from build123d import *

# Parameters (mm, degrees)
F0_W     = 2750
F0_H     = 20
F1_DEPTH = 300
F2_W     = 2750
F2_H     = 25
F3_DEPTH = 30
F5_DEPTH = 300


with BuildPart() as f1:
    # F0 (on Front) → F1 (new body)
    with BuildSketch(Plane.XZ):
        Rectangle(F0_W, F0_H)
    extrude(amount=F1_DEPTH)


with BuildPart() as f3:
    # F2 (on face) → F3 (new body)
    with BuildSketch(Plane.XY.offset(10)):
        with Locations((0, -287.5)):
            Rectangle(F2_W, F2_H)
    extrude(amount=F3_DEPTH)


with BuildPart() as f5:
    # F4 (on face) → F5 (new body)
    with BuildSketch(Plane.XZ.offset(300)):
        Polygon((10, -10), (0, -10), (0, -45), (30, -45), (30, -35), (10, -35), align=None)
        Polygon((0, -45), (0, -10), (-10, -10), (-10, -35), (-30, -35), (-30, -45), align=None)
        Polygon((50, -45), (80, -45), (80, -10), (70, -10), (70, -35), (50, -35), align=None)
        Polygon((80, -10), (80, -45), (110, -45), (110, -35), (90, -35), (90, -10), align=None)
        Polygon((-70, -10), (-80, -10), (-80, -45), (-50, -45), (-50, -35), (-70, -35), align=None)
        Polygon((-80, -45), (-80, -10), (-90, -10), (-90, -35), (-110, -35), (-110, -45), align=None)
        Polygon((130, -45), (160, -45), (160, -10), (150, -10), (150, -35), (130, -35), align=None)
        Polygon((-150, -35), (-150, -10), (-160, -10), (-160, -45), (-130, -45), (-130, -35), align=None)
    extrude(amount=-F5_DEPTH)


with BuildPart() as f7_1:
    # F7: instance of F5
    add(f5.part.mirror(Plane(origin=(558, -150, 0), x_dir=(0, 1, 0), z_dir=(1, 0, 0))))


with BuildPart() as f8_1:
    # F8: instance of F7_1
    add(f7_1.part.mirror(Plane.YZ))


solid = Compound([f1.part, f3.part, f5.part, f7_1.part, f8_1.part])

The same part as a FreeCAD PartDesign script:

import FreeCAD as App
import Part
import Sketcher

V = App.Vector
Q = App.Units.Quantity

doc = App.newDocument("Part")
params = doc.addObject("Spreadsheet::Sheet", "Params")
for row, (alias, value) in enumerate([
    ("sketch1_width", "2750 mm"),
    ("sketch1_height", "20 mm"),
    ("pad1_length", "300 mm"),
    ("sketch2_width", "2750 mm"),
    ("sketch2_height", "25 mm"),
    ("pad2_length", "30 mm"),
    ("sketch3_width", "20 mm"),
    ("sketch3_width2", "30 mm"),
    ("sketch3_height", "25 mm"),
    ("pad3_length", "300 mm"),
], start=1):
    params.set(f"A{row}", alias)
    params.set(f"B{row}", "=" + value)
    params.setAlias(f"B{row}", alias)

body = doc.addObject("PartDesign::Body", "Body")

# Sketch on XZ plane
sketch1 = body.newObject("Sketcher::SketchObject", "Sketch")
sketch1.AttachmentSupport = (doc.getObject("XZ_Plane"), [""])
sketch1.MapMode = "FlatFace"
sketch1.addGeometry(Part.LineSegment(V(-1375, 10, 0), V(-1375, -10, 0)), False)
sketch1.addGeometry(Part.LineSegment(V(-1375, -10, 0), V(1375, -10, 0)), False)
sketch1.addGeometry(Part.LineSegment(V(1375, -10, 0), V(1375, 10, 0)), False)
sketch1.addGeometry(Part.LineSegment(V(1375, 10, 0), V(-1375, 10, 0)), False)
sketch1.addConstraint(Sketcher.Constraint("Coincident", 0, 2, 1, 1))
sketch1.addConstraint(Sketcher.Constraint("Coincident", 1, 2, 2, 1))
sketch1.addConstraint(Sketcher.Constraint("Coincident", 2, 2, 3, 1))
sketch1.addConstraint(Sketcher.Constraint("Coincident", 3, 2, 0, 1))
sketch1.addConstraint(Sketcher.Constraint("Vertical", 0))
sketch1.addConstraint(Sketcher.Constraint("Horizontal", 1))
sketch1.addConstraint(Sketcher.Constraint("Vertical", 2))
sketch1.addConstraint(Sketcher.Constraint("Horizontal", 3))
sketch1.addConstraint(Sketcher.Constraint("Symmetric", 0, 2, 2, 2, -1, 1))
sketch1.addConstraint(Sketcher.Constraint("DistanceX", 1, 1, 1, 2, Q("2750 mm")))
sketch1.addConstraint(Sketcher.Constraint("DistanceY", 0, 2, 0, 1, Q("20 mm")))
sketch1.setExpression("Constraints[9]", "Params.sketch1_width")
sketch1.setExpression("Constraints[10]", "Params.sketch1_height")
pad1 = body.newObject("PartDesign::Pad", "Pad")
pad1.Profile = sketch1
pad1.setExpression("Length", "Params.pad1_length")
body2 = doc.addObject("PartDesign::Body", "Body001")

# Sketch on XY plane
sketch2 = body2.newObject("Sketcher::SketchObject", "Sketch001")
sketch2.AttachmentSupport = (doc.getObject("XY_Plane001"), [""])
sketch2.MapMode = "FlatFace"
sketch2.AttachmentOffset = App.Placement(V(0, 0, 10), App.Rotation())
sketch2.addGeometry(Part.LineSegment(V(-1375, -275, 0), V(-1375, -300, 0)), False)
sketch2.addGeometry(Part.LineSegment(V(-1375, -300, 0), V(1375, -300, 0)), False)
sketch2.addGeometry(Part.LineSegment(V(1375, -300, 0), V(1375, -275, 0)), False)
sketch2.addGeometry(Part.LineSegment(V(1375, -275, 0), V(-1375, -275, 0)), False)
sketch2.addConstraint(Sketcher.Constraint("Coincident", 0, 2, 1, 1))
sketch2.addConstraint(Sketcher.Constraint("Coincident", 1, 2, 2, 1))
sketch2.addConstraint(Sketcher.Constraint("Coincident", 2, 2, 3, 1))
sketch2.addConstraint(Sketcher.Constraint("Coincident", 3, 2, 0, 1))
sketch2.addConstraint(Sketcher.Constraint("Vertical", 0))
sketch2.addConstraint(Sketcher.Constraint("Horizontal", 1))
sketch2.addConstraint(Sketcher.Constraint("Vertical", 2))
sketch2.addConstraint(Sketcher.Constraint("Horizontal", 3))
sketch2.addConstraint(Sketcher.Constraint("DistanceX", 1, 1, 1, 2, Q("2750 mm")))
sketch2.addConstraint(Sketcher.Constraint("DistanceY", 0, 2, 0, 1, Q("25 mm")))
sketch2.addConstraint(Sketcher.Constraint("DistanceX", 0, 2, -1, 1, Q("1375 mm")))
sketch2.addConstraint(Sketcher.Constraint("DistanceY", 0, 2, -1, 1, Q("300 mm")))
sketch2.setExpression("Constraints[8]", "Params.sketch2_width")
sketch2.setExpression("Constraints[9]", "Params.sketch2_height")
pad2 = body2.newObject("PartDesign::Pad", "Pad001")
pad2.Profile = sketch2
pad2.setExpression("Length", "Params.pad2_length")
body3 = doc.addObject("PartDesign::Body", "Body002")
body3.AllowCompound = True

# Sketch on XZ plane
sketch3 = body3.newObject("Sketcher::SketchObject", "Sketch002")
sketch3.AttachmentSupport = (doc.getObject("XZ_Plane002"), [""])
sketch3.MapMode = "FlatFace"
sketch3.AttachmentOffset = App.Placement(V(0, 0, 300), App.Rotation())
sketch3.addGeometry(Part.LineSegment(V(10, -10, 0), V(-10, -10, 0)), False)
sketch3.addGeometry(Part.LineSegment(V(-10, -10, 0), V(-10, -35, 0)), False)
sketch3.addGeometry(Part.LineSegment(V(-10, -35, 0), V(-30, -35, 0)), False)
sketch3.addGeometry(Part.LineSegment(V(-30, -35, 0), V(-30, -45, 0)), False)
sketch3.addGeometry(Part.LineSegment(V(-30, -45, 0), V(30, -45, 0)), False)
sketch3.addGeometry(Part.LineSegment(V(30, -45, 0), V(30, -35, 0)), False)
sketch3.addGeometry(Part.LineSegment(V(30, -35, 0), V(10, -35, 0)), False)
sketch3.addGeometry(Part.LineSegment(V(10, -35, 0), V(10, -10, 0)), False)
sketch3.addGeometry(Part.LineSegment(V(50, -45, 0), V(110, -45, 0)), False)
sketch3.addGeometry(Part.LineSegment(V(110, -45, 0), V(110, -35, 0)), False)
sketch3.addGeometry(Part.LineSegment(V(110, -35, 0), V(90, -35, 0)), False)
sketch3.addGeometry(Part.LineSegment(V(90, -35, 0), V(90, -10, 0)), False)
sketch3.addGeometry(Part.LineSegment(V(90, -10, 0), V(70, -10, 0)), False)
sketch3.addGeometry(Part.LineSegment(V(70, -10, 0), V(70, -35, 0)), False)
sketch3.addGeometry(Part.LineSegment(V(70, -35, 0), V(50, -35, 0)), False)
sketch3.addGeometry(Part.LineSegment(V(50, -35, 0), V(50, -45, 0)), False)
sketch3.addGeometry(Part.LineSegment(V(-70, -10, 0), V(-90, -10, 0)), False)
sketch3.addGeometry(Part.LineSegment(V(-90, -10, 0), V(-90, -35, 0)), False)
sketch3.addGeometry(Part.LineSegment(V(-90, -35, 0), V(-110, -35, 0)), False)
sketch3.addGeometry(Part.LineSegment(V(-110, -35, 0), V(-110, -45, 0)), False)
sketch3.addGeometry(Part.LineSegment(V(-110, -45, 0), V(-50, -45, 0)), False)
sketch3.addGeometry(Part.LineSegment(V(-50, -45, 0), V(-50, -35, 0)), False)
sketch3.addGeometry(Part.LineSegment(V(-50, -35, 0), V(-70, -35, 0)), False)
sketch3.addGeometry(Part.LineSegment(V(-70, -35, 0), V(-70, -10, 0)), False)
sketch3.addGeometry(Part.LineSegment(V(130, -45, 0), V(160, -45, 0)), False)
sketch3.addGeometry(Part.LineSegment(V(160, -45, 0), V(160, -10, 0)), False)
sketch3.addGeometry(Part.LineSegment(V(160, -10, 0), V(150, -10, 0)), False)
sketch3.addGeometry(Part.LineSegment(V(150, -10, 0), V(150, -35, 0)), False)
sketch3.addGeometry(Part.LineSegment(V(150, -35, 0), V(130, -35, 0)), False)
sketch3.addGeometry(Part.LineSegment(V(130, -35, 0), V(130, -45, 0)), False)
sketch3.addGeometry(Part.LineSegment(V(-150, -35, 0), V(-150, -10, 0)), False)
sketch3.addGeometry(Part.LineSegment(V(-150, -10, 0), V(-160, -10, 0)), False)
sketch3.addGeometry(Part.LineSegment(V(-160, -10, 0), V(-160, -45, 0)), False)
sketch3.addGeometry(Part.LineSegment(V(-160, -45, 0), V(-130, -45, 0)), False)
sketch3.addGeometry(Part.LineSegment(V(-130, -45, 0), V(-130, -35, 0)), False)
sketch3.addGeometry(Part.LineSegment(V(-130, -35, 0), V(-150, -35, 0)), False)
sketch3.addConstraint(Sketcher.Constraint("Coincident", 0, 2, 1, 1))
sketch3.addConstraint(Sketcher.Constraint("Coincident", 1, 2, 2, 1))
sketch3.addConstraint(Sketcher.Constraint("Coincident", 2, 2, 3, 1))
sketch3.addConstraint(Sketcher.Constraint("Coincident", 3, 2, 4, 1))
sketch3.addConstraint(Sketcher.Constraint("Coincident", 4, 2, 5, 1))
sketch3.addConstraint(Sketcher.Constraint("Coincident", 5, 2, 6, 1))
sketch3.addConstraint(Sketcher.Constraint("Coincident", 6, 2, 7, 1))
sketch3.addConstraint(Sketcher.Constraint("Coincident", 7, 2, 0, 1))
sketch3.addConstraint(Sketcher.Constraint("Coincident", 8, 2, 9, 1))
sketch3.addConstraint(Sketcher.Constraint("Coincident", 9, 2, 10, 1))
sketch3.addConstraint(Sketcher.Constraint("Coincident", 10, 2, 11, 1))
sketch3.addConstraint(Sketcher.Constraint("Coincident", 11, 2, 12, 1))
sketch3.addConstraint(Sketcher.Constraint("Coincident", 12, 2, 13, 1))
sketch3.addConstraint(Sketcher.Constraint("Coincident", 13, 2, 14, 1))
sketch3.addConstraint(Sketcher.Constraint("Coincident", 14, 2, 15, 1))
sketch3.addConstraint(Sketcher.Constraint("Coincident", 15, 2, 8, 1))
sketch3.addConstraint(Sketcher.Constraint("Coincident", 16, 2, 17, 1))
sketch3.addConstraint(Sketcher.Constraint("Coincident", 17, 2, 18, 1))
sketch3.addConstraint(Sketcher.Constraint("Coincident", 18, 2, 19, 1))
sketch3.addConstraint(Sketcher.Constraint("Coincident", 19, 2, 20, 1))
sketch3.addConstraint(Sketcher.Constraint("Coincident", 20, 2, 21, 1))
sketch3.addConstraint(Sketcher.Constraint("Coincident", 21, 2, 22, 1))
sketch3.addConstraint(Sketcher.Constraint("Coincident", 22, 2, 23, 1))
sketch3.addConstraint(Sketcher.Constraint("Coincident", 23, 2, 16, 1))
sketch3.addConstraint(Sketcher.Constraint("Coincident", 24, 2, 25, 1))
sketch3.addConstraint(Sketcher.Constraint("Coincident", 25, 2, 26, 1))
sketch3.addConstraint(Sketcher.Constraint("Coincident", 26, 2, 27, 1))
sketch3.addConstraint(Sketcher.Constraint("Coincident", 27, 2, 28, 1))
sketch3.addConstraint(Sketcher.Constraint("Coincident", 28, 2, 29, 1))
sketch3.addConstraint(Sketcher.Constraint("Coincident", 29, 2, 24, 1))
sketch3.addConstraint(Sketcher.Constraint("Coincident", 30, 2, 31, 1))
sketch3.addConstraint(Sketcher.Constraint("Coincident", 31, 2, 32, 1))
sketch3.addConstraint(Sketcher.Constraint("Coincident", 32, 2, 33, 1))
sketch3.addConstraint(Sketcher.Constraint("Coincident", 33, 2, 34, 1))
sketch3.addConstraint(Sketcher.Constraint("Coincident", 34, 2, 35, 1))
sketch3.addConstraint(Sketcher.Constraint("Coincident", 35, 2, 30, 1))
sketch3.addConstraint(Sketcher.Constraint("Horizontal", 0))
sketch3.addConstraint(Sketcher.Constraint("Vertical", 1))
sketch3.addConstraint(Sketcher.Constraint("Horizontal", 2))
sketch3.addConstraint(Sketcher.Constraint("Vertical", 3))
sketch3.addConstraint(Sketcher.Constraint("Horizontal", 4))
sketch3.addConstraint(Sketcher.Constraint("Vertical", 5))
sketch3.addConstraint(Sketcher.Constraint("Horizontal", 6))
sketch3.addConstraint(Sketcher.Constraint("Vertical", 7))
sketch3.addConstraint(Sketcher.Constraint("Horizontal", 8))
sketch3.addConstraint(Sketcher.Constraint("Vertical", 9))
sketch3.addConstraint(Sketcher.Constraint("Horizontal", 10))
sketch3.addConstraint(Sketcher.Constraint("Vertical", 11))
sketch3.addConstraint(Sketcher.Constraint("Horizontal", 12))
sketch3.addConstraint(Sketcher.Constraint("Vertical", 13))
sketch3.addConstraint(Sketcher.Constraint("Horizontal", 14))
sketch3.addConstraint(Sketcher.Constraint("Vertical", 15))
sketch3.addConstraint(Sketcher.Constraint("Horizontal", 16))
sketch3.addConstraint(Sketcher.Constraint("Vertical", 17))
sketch3.addConstraint(Sketcher.Constraint("Horizontal", 18))
sketch3.addConstraint(Sketcher.Constraint("Vertical", 19))
sketch3.addConstraint(Sketcher.Constraint("Horizontal", 20))
sketch3.addConstraint(Sketcher.Constraint("Vertical", 21))
sketch3.addConstraint(Sketcher.Constraint("Horizontal", 22))
sketch3.addConstraint(Sketcher.Constraint("Vertical", 23))
sketch3.addConstraint(Sketcher.Constraint("Horizontal", 24))
sketch3.addConstraint(Sketcher.Constraint("Vertical", 25))
sketch3.addConstraint(Sketcher.Constraint("Horizontal", 26))
sketch3.addConstraint(Sketcher.Constraint("Vertical", 27))
sketch3.addConstraint(Sketcher.Constraint("Horizontal", 28))
sketch3.addConstraint(Sketcher.Constraint("Vertical", 29))
sketch3.addConstraint(Sketcher.Constraint("Vertical", 30))
sketch3.addConstraint(Sketcher.Constraint("Horizontal", 31))
sketch3.addConstraint(Sketcher.Constraint("Vertical", 32))
sketch3.addConstraint(Sketcher.Constraint("Horizontal", 33))
sketch3.addConstraint(Sketcher.Constraint("Vertical", 34))
sketch3.addConstraint(Sketcher.Constraint("Horizontal", 35))
sketch3.addConstraint(Sketcher.Constraint("Symmetric", 2, 2, 5, 2, -2))
sketch3.addConstraint(Sketcher.Constraint("Symmetric", 11, 2, 16, 2, -2))
sketch3.addConstraint(Sketcher.Constraint("Symmetric", 9, 2, 18, 2, -2))
sketch3.addConstraint(Sketcher.Constraint("Symmetric", 15, 2, 20, 2, -2))
sketch3.addConstraint(Sketcher.Constraint("Symmetric", 13, 2, 22, 2, -2))
sketch3.addConstraint(Sketcher.Constraint("Symmetric", 26, 2, 30, 2, -2))
sketch3.addConstraint(Sketcher.Constraint("Symmetric", 24, 2, 32, 2, -2))
sketch3.addConstraint(Sketcher.Constraint("Symmetric", 28, 2, 34, 2, -2))
sketch3.addConstraint(Sketcher.Constraint("Horizontal", 4, 2, 8, 2))
sketch3.addConstraint(Sketcher.Constraint("Horizontal", 6, 2, 9, 2))
sketch3.addConstraint(Sketcher.Constraint("Horizontal", 7, 2, 11, 2))
sketch3.addConstraint(Sketcher.Constraint("Horizontal", 10, 2, 13, 2))
sketch3.addConstraint(Sketcher.Constraint("Horizontal", 20, 2, 24, 2))
sketch3.addConstraint(Sketcher.Constraint("Horizontal", 23, 2, 25, 2))
sketch3.addConstraint(Sketcher.Constraint("Horizontal", 22, 2, 27, 2))
sketch3.addConstraint(Sketcher.Constraint("Equal", 0, 2))
sketch3.addConstraint(Sketcher.Constraint("Equal", 2, 6))
sketch3.addConstraint(Sketcher.Constraint("Equal", 4, 8))
sketch3.addConstraint(Sketcher.Constraint("Equal", 6, 10))
sketch3.addConstraint(Sketcher.Constraint("Equal", 10, 12))
sketch3.addConstraint(Sketcher.Constraint("Equal", 22, 28))
sketch3.addConstraint(Sketcher.Constraint("Equal", 31, 3))
sketch3.addConstraint(Sketcher.Constraint("DistanceX", 0, 2, 0, 1, Q("20 mm")))
sketch3.addConstraint(Sketcher.Constraint("DistanceX", 24, 1, 24, 2, Q("30 mm")))
sketch3.addConstraint(Sketcher.Constraint("DistanceY", 1, 2, 1, 1, Q("25 mm")))
sketch3.addConstraint(Sketcher.Constraint("DistanceY", 0, 2, -1, 1, Q("10 mm")))
sketch3.addConstraint(Sketcher.Constraint("DistanceX", -1, 1, 8, 2, Q("110 mm")))
sketch3.addConstraint(Sketcher.Constraint("DistanceX", -1, 1, 24, 2, Q("160 mm")))
sketch3.setExpression("Constraints[94]", "Params.sketch3_width")
sketch3.setExpression("Constraints[95]", "Params.sketch3_width2")
sketch3.setExpression("Constraints[96]", "Params.sketch3_height")
pad3 = body3.newObject("PartDesign::Pad", "Pad002")
pad3.Profile = sketch3
pad3.setExpression("Length", "Params.pad3_length")
pad3.Reversed = True
body4 = doc.addObject("PartDesign::Body", "Body003")
body4.AllowCompound = True
doc.recompute()

mirroring = doc.addObject("Part::Mirroring", "Mirroring")
mirroring.Source = body3
mirroring.Base = V(558, -150, 0)
mirroring.Normal = V(1, 0, 0)
body4.BaseFeature = mirroring
doc.recompute()
body5 = doc.addObject("PartDesign::Body", "Body004")
body5.AllowCompound = True
doc.recompute()

mirroring2 = doc.addObject("Part::Mirroring", "Mirroring001")
mirroring2.Source = body4
mirroring2.Base = V(0, 0, 0)
mirroring2.Normal = V(1, 0, 0)
body5.BaseFeature = mirroring2
doc.recompute()
mirroring.Visibility = False
mirroring2.Visibility = False

doc.recompute()
